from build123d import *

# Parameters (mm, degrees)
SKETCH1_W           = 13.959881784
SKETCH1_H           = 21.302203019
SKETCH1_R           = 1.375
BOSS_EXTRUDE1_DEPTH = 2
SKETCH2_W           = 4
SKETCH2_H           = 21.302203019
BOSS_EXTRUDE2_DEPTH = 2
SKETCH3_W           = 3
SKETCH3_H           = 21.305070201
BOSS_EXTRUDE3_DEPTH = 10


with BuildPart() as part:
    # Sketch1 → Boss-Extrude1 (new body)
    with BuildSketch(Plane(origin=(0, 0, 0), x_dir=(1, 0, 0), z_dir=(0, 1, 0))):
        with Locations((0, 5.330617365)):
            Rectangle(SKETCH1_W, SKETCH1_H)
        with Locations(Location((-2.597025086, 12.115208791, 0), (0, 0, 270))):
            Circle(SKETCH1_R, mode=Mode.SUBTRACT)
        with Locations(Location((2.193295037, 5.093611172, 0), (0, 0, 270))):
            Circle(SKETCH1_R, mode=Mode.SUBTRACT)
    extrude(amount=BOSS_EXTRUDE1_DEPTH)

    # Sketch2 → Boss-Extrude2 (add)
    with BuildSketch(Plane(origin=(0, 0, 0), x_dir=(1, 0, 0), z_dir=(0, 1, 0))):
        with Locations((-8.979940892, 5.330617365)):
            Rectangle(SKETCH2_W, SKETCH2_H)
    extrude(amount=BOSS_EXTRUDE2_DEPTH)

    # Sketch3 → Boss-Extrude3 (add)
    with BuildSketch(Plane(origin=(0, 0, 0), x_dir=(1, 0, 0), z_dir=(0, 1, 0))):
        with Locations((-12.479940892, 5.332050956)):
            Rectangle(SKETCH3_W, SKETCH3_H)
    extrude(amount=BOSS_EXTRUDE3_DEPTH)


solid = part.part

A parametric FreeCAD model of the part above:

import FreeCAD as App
import Part
import Sketcher

V = App.Vector


def add_polygon(sketch, points):
    """Adds a closed chain of lines whose ends are joined by coincident constraints."""
    first, n = sketch.GeometryCount, len(points)
    for a, b in zip(points, points[1:] + points[:1]):
        sketch.addGeometry(Part.LineSegment(App.Vector(*a, 0), App.Vector(*b, 0)), False)
    for i in range(n):
        sketch.addConstraint(Sketcher.Constraint("Coincident", first + i, 2, first + (i + 1) % n, 1))

doc = App.newDocument("Part")
body = doc.addObject("PartDesign::Body", "Body")

sketch1 = body.newObject("Sketcher::SketchObject", "Sketch")
sketch1.AttachmentSupport = (doc.getObject("XZ_Plane"), [""])
sketch1.MapMode = "FlatFace"
add_polygon(sketch1, [(-7, -16), (-7, 5.3), (7, 5.3), (7, -16)])
sketch1.addGeometry(Part.Circle(V(2.2, -5.1, 0), V(0, 0, 1), 1.4), False)
sketch1.addGeometry(Part.Circle(V(-2.6, -12.1, 0), V(0, 0, 1), 1.4), False)
sketch1.addConstraint(Sketcher.Constraint("Vertical", 0))
sketch1.addConstraint(Sketcher.Constraint("Horizontal", 1))
sketch1.addConstraint(Sketcher.Constraint("Vertical", 2))
sketch1.addConstraint(Sketcher.Constraint("Horizontal", 3))
sketch1.addConstraint(Sketcher.Constraint("Equal", 4, 5))
sketch1.addConstraint(Sketcher.Constraint("Diameter", 4, 2.75))
sketch1.addConstraint(Sketcher.Constraint("DistanceX", 1, 1, 1, 2, 13.959882))
sketch1.addConstraint(Sketcher.Constraint("DistanceY", 0, 1, 0, 2, 21.302203))
sketch1.addConstraint(Sketcher.Constraint("DistanceY", 4, 3, -1, 1, 5.093611))
sketch1.addConstraint(Sketcher.Constraint("DistanceY", 5, 3, -1, 1, 12.115209))
sketch1.addConstraint(Sketcher.Constraint("DistanceX", 0, 2, -1, 1, 6.979941))
sketch1.addConstraint(Sketcher.Constraint("DistanceY", 2, 2, -1, 1, 15.981719))
sketch1.addConstraint(Sketcher.Constraint("DistanceX", 5, 3, 4, 3, 4.79032))
sketch1.addConstraint(Sketcher.Constraint("DistanceX", -1, 1, 4, 3, 2.193295))
pad1 = body.newObject("PartDesign::Pad", "Pad")
pad1.Profile = sketch1
pad1.Length = 2
pad1.Reversed = True

sketch2 = body.newObject("Sketcher::SketchObject", "Sketch001")
sketch2.AttachmentSupport = (doc.getObject("XZ_Plane"), [""])
sketch2.MapMode = "FlatFace"
add_polygon(sketch2, [(-11, -16), (-11, 5.3), (-7, 5.3), (-7, -16)])
sketch2.addConstraint(Sketcher.Constraint("Vertical", 0))
sketch2.addConstraint(Sketcher.Constraint("Horizontal", 1))
sketch2.addConstraint(Sketcher.Constraint("Vertical", 2))
sketch2.addConstraint(Sketcher.Constraint("Horizontal", 3))
sketch2.addConstraint(Sketcher.Constraint("DistanceX", 1, 1, 1, 2, 4.0))
sketch2.addConstraint(Sketcher.Constraint("DistanceY", 0, 1, 0, 2, 21.302203))
sketch2.addConstraint(Sketcher.Constraint("DistanceX", 0, 2, -1, 1, 10.979941))
sketch2.addConstraint(Sketcher.Constraint("DistanceY", 2, 2, -1, 1, 15.981719))
pad2 = body.newObject("PartDesign::Pad", "Pad001")
pad2.Profile = sketch2
pad2.Length = 2
pad2.Reversed = True

sketch3 = body.newObject("Sketcher::SketchObject", "Sketch002")
sketch3.AttachmentSupport = (doc.getObject("XZ_Plane"), [""])
sketch3.MapMode = "FlatFace"
add_polygon(sketch3, [(-14, -16), (-14, 5.3), (-11, 5.3), (-11, -16)])
sketch3.addConstraint(Sketcher.Constraint("Vertical", 0))
sketch3.addConstraint(Sketcher.Constraint("Horizontal", 1))
sketch3.addConstraint(Sketcher.Constraint("Vertical", 2))
sketch3.addConstraint(Sketcher.Constraint("Horizontal", 3))
sketch3.addConstraint(Sketcher.Constraint("DistanceX", 1, 1, 1, 2, 3.0))
sketch3.addConstraint(Sketcher.Constraint("DistanceY", 0, 1, 0, 2, 21.30507))
sketch3.addConstraint(Sketcher.Constraint("DistanceX", 0, 2, -1, 1, 13.979941))
sketch3.addConstraint(Sketcher.Constraint("DistanceY", -1, 1, 0, 2, 5.320484))
pad3 = body.newObject("PartDesign::Pad", "Pad002")
pad3.Profile = sketch3
pad3.Length = 10
pad3.Reversed = True

doc.recompute()
